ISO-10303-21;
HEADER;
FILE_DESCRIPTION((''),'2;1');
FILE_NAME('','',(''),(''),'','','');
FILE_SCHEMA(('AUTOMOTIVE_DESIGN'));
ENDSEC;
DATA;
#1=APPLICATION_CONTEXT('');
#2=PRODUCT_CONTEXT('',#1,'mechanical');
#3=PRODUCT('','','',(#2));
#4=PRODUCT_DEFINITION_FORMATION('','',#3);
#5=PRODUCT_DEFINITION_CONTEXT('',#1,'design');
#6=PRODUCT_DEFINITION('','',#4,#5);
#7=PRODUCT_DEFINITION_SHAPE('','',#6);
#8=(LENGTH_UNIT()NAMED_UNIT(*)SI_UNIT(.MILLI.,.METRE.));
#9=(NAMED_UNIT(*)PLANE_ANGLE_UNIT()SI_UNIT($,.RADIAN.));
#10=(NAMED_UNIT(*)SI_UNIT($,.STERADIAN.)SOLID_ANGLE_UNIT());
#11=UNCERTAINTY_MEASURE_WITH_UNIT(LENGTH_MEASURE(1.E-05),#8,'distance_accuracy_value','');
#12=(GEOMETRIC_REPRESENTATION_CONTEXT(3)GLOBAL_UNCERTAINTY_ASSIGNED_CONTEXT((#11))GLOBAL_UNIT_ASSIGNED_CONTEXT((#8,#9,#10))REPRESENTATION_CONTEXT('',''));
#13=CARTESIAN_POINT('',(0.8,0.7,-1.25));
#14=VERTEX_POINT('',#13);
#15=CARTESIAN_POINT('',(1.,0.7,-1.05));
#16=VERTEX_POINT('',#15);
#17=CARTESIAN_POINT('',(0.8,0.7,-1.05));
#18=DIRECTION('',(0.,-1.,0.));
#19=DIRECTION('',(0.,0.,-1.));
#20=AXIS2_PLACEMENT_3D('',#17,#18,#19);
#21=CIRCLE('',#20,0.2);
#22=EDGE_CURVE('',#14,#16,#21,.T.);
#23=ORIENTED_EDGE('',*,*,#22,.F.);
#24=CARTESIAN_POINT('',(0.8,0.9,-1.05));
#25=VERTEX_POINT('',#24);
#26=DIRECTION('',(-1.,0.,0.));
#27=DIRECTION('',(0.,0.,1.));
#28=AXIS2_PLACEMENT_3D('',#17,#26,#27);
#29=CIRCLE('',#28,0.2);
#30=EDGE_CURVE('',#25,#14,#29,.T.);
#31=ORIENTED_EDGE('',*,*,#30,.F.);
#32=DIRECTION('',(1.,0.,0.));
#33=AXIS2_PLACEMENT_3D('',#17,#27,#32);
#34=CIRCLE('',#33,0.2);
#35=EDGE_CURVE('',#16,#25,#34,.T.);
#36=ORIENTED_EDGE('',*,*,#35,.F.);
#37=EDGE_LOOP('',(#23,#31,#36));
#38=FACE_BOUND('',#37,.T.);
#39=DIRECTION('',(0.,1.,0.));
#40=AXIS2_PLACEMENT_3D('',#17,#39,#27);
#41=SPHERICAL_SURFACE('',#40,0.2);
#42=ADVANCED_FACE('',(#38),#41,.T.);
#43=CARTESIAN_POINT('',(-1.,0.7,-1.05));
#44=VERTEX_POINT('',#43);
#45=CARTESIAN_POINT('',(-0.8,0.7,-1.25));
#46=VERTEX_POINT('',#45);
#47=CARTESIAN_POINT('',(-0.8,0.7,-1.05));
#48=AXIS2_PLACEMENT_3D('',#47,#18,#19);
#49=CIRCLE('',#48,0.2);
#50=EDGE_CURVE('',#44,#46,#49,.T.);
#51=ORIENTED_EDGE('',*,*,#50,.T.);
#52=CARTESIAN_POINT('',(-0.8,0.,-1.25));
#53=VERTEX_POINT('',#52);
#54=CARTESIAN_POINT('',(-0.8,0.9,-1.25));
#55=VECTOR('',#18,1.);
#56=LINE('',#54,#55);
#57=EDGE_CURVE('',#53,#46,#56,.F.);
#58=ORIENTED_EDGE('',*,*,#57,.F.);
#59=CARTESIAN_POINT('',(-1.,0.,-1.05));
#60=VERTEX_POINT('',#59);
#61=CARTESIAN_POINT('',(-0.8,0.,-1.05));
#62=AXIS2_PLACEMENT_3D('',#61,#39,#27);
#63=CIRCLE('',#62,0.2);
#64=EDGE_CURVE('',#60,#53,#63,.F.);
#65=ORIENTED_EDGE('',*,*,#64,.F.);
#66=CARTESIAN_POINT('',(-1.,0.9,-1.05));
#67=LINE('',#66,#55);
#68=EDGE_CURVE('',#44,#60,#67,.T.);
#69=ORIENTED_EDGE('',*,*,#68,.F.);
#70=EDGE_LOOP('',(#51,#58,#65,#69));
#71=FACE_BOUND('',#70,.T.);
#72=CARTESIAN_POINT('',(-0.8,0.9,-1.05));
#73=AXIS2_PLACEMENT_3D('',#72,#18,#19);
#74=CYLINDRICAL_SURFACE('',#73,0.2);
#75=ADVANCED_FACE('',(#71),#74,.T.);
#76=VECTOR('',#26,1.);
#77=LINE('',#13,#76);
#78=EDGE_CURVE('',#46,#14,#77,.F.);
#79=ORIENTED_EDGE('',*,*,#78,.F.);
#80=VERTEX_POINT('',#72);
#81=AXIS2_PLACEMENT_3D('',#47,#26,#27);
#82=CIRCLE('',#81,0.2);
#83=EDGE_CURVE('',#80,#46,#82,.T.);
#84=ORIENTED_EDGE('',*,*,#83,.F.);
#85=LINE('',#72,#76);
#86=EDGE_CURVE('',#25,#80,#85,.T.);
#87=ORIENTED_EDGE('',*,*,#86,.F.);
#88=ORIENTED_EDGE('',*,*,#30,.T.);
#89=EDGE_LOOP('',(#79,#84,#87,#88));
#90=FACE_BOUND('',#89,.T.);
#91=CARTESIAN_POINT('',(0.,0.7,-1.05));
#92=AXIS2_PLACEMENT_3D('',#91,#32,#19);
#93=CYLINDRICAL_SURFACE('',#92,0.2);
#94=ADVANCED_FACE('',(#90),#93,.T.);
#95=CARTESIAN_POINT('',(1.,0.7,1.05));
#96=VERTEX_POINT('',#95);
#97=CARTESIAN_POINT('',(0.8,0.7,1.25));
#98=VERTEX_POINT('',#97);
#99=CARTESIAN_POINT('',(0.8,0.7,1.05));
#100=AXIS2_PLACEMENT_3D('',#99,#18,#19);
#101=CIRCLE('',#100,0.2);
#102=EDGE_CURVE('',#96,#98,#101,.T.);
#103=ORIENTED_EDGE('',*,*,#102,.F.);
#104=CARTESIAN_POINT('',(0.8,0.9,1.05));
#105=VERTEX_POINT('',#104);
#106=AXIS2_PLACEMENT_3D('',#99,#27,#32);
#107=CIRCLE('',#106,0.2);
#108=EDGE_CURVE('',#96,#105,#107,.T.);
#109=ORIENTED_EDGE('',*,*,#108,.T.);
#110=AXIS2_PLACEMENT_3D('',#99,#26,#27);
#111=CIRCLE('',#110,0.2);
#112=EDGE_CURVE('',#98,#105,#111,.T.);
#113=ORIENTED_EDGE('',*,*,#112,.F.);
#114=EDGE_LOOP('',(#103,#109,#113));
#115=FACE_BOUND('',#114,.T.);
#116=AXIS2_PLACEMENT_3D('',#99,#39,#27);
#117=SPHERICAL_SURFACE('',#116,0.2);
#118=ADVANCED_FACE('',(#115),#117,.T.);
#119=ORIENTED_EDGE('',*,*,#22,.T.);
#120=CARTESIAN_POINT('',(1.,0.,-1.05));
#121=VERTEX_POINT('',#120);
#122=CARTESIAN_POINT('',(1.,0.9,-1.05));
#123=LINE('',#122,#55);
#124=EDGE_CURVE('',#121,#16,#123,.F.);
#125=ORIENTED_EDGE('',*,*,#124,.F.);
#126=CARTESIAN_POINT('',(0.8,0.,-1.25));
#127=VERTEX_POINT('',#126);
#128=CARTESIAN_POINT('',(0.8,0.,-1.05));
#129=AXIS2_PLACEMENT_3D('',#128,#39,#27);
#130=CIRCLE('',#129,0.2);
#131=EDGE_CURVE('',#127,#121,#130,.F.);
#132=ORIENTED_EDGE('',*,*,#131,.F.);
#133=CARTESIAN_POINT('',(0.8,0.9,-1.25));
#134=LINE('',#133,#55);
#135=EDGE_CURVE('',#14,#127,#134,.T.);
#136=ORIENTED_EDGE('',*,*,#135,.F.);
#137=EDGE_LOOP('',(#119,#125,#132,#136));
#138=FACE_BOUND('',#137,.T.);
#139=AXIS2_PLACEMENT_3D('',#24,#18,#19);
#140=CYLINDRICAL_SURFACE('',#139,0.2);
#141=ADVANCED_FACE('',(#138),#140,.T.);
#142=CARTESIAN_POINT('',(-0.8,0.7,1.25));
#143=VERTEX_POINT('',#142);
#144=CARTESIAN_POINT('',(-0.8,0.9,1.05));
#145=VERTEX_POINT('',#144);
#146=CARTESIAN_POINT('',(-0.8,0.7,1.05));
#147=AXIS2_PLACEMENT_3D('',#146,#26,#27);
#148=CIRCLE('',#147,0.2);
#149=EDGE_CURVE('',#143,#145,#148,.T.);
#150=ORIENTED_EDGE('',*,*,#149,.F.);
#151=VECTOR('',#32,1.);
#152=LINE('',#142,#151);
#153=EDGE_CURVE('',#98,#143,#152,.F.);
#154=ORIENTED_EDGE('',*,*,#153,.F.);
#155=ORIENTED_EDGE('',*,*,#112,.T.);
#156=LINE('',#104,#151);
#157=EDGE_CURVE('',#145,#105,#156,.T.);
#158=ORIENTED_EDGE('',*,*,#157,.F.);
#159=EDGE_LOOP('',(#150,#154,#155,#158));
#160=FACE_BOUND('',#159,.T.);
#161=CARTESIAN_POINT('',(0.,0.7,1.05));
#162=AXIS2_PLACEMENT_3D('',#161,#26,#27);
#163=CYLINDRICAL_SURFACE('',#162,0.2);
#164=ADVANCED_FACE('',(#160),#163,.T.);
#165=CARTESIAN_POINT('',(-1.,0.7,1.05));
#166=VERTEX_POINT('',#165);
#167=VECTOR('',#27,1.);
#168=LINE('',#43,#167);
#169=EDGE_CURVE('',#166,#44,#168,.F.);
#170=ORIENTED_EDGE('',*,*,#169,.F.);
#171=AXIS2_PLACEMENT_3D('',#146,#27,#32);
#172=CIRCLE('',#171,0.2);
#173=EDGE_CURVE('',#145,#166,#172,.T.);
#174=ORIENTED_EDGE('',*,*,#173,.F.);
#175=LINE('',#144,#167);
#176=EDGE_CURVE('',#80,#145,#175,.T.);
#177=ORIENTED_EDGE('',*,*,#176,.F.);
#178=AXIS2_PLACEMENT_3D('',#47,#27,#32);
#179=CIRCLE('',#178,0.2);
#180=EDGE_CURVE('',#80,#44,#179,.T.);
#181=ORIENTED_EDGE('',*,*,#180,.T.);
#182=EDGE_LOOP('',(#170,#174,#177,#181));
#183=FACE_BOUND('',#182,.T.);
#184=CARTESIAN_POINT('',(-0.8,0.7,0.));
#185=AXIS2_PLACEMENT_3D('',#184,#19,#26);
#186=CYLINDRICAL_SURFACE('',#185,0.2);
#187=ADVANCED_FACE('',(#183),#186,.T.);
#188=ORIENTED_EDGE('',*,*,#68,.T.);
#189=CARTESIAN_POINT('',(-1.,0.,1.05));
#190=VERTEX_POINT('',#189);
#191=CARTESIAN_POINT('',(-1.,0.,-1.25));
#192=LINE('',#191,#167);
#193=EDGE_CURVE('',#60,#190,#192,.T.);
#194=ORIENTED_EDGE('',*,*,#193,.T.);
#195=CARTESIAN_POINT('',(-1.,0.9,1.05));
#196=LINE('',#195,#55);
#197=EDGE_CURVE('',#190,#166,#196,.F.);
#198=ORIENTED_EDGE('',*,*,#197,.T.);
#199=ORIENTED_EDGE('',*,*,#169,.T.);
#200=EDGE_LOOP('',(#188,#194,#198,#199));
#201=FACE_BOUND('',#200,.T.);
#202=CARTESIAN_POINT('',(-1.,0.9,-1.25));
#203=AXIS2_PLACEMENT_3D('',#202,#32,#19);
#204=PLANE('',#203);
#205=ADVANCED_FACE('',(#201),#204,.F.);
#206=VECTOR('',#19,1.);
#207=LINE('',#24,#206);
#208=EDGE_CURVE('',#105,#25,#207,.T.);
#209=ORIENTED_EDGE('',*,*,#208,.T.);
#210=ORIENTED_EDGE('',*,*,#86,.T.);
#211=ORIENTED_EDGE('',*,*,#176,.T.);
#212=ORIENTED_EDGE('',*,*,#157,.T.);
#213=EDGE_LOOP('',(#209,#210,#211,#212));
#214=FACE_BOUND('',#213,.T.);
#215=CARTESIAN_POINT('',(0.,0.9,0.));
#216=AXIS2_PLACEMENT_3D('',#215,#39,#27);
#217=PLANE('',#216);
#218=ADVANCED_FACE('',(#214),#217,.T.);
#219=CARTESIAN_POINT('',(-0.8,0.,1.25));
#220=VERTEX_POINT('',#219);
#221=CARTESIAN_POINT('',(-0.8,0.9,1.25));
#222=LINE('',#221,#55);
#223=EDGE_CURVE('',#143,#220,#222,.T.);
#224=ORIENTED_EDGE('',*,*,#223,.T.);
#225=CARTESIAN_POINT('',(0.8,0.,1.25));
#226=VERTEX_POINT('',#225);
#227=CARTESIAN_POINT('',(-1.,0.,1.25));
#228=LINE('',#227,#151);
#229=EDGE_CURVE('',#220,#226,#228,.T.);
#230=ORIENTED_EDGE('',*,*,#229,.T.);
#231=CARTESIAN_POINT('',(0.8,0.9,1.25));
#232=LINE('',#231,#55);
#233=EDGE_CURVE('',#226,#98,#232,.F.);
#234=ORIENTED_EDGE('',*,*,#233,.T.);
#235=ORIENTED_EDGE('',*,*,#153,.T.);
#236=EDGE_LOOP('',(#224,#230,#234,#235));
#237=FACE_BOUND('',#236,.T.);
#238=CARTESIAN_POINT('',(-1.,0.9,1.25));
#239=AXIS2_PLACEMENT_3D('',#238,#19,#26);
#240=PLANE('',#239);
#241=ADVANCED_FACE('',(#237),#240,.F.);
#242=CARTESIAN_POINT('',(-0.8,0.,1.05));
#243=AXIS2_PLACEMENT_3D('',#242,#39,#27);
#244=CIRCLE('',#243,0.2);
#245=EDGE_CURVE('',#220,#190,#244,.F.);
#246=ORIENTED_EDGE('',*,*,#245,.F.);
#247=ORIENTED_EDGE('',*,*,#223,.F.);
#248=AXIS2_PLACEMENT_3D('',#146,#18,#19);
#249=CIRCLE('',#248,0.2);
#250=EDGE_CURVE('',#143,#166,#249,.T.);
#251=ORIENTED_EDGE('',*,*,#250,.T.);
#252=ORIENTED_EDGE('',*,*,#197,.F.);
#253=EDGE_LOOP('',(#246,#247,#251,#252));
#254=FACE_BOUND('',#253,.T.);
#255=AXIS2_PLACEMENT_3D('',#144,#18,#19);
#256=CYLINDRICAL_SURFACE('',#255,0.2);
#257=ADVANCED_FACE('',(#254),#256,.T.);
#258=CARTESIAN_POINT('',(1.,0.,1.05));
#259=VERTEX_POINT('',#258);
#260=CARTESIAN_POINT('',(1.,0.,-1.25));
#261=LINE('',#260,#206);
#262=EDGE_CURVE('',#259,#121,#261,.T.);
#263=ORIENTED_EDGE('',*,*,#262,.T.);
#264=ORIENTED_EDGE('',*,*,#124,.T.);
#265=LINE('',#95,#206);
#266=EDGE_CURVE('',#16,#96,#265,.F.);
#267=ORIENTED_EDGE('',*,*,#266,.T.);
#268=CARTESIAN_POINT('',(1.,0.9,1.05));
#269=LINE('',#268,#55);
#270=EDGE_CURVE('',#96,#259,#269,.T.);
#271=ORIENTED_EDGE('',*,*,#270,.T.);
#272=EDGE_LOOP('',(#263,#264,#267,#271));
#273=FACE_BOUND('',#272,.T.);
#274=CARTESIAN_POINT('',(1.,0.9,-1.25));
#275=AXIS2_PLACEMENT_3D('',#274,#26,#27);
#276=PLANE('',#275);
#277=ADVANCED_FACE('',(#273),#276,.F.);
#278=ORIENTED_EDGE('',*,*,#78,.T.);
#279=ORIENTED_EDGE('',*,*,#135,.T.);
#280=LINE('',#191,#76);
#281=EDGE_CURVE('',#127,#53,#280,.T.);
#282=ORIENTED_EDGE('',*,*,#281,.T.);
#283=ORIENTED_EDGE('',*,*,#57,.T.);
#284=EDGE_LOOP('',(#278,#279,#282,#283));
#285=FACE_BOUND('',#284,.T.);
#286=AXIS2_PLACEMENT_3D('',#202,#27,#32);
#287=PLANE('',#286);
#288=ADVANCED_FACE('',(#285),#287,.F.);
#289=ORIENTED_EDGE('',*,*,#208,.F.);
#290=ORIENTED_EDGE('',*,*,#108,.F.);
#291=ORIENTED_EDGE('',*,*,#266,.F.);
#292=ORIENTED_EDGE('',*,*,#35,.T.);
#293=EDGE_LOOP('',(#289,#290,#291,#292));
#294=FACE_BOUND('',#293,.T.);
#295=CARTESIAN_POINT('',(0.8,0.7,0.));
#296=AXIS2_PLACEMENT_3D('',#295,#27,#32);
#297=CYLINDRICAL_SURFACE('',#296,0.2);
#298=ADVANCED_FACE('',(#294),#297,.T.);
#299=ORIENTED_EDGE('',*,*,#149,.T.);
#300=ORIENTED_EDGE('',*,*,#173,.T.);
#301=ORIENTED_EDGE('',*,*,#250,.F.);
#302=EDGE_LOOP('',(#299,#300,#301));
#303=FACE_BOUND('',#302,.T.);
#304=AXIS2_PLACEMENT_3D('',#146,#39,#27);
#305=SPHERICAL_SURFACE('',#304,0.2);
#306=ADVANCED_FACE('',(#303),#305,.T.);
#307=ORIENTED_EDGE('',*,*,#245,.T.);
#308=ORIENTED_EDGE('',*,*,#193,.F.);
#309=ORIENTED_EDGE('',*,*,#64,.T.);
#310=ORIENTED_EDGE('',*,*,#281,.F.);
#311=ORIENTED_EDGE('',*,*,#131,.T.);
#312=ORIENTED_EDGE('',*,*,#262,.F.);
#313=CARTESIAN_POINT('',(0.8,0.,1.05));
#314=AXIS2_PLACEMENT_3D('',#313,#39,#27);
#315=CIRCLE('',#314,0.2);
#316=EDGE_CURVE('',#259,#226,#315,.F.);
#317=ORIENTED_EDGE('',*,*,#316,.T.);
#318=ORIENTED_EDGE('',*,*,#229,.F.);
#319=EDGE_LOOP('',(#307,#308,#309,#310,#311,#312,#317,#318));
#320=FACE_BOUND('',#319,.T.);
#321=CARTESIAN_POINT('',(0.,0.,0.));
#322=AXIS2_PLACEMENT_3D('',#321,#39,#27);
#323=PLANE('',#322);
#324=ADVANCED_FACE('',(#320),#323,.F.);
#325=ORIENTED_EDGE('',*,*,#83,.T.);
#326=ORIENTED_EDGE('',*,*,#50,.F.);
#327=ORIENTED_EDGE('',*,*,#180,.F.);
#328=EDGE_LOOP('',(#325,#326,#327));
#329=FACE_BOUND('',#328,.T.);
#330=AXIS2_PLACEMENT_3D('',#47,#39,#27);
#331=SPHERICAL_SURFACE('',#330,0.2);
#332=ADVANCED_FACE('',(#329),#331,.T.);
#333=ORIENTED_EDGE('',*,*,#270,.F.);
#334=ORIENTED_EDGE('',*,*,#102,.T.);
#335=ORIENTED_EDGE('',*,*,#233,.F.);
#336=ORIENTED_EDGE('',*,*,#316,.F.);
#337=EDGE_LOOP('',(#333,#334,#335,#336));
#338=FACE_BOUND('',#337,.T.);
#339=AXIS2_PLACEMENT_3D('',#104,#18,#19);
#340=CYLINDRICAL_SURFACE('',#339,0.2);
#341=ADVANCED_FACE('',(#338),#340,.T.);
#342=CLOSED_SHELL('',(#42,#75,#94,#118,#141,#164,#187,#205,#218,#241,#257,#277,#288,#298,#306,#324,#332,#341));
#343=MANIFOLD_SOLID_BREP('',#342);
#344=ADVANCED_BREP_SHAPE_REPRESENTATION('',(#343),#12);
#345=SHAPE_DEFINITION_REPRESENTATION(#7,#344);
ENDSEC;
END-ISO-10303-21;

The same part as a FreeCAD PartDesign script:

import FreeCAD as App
import Part
import Sketcher
from FreeCAD import Vector


def edges_at(feature, points):
    """Names of the edges that pass closest to the given points."""
    edges = feature.Shape.Edges
    near = lambda p: min(range(len(edges)), key=lambda i: edges[i].distToShape(Part.Vertex(*p))[0])
    return sorted({f"Edge{near(p) + 1}" for p in points})


def add_polygon(sketch, points):
    """Adds a closed chain of lines whose ends are joined by coincident constraints."""
    first, n = sketch.GeometryCount, len(points)
    for a, b in zip(points, points[1:] + points[:1]):
        sketch.addGeometry(Part.LineSegment(App.Vector(*a, 0), App.Vector(*b, 0)), False)
    for i in range(n):
        sketch.addConstraint(Sketcher.Constraint("Coincident", first + i, 2, first + (i + 1) % n, 1))

doc = App.newDocument("Part")
params = doc.addObject("Spreadsheet::Sheet", "Params")
for row, (alias, value) in enumerate([
    ("sketch1_width", "2 mm"),
    ("sketch1_height", "2.5 mm"),
    ("pad1_length", "0.9 mm"),
    ("fillet_radius", "0.2 mm"),
    ("fillet2_radius", "0.2 mm"),
], start=1):
    params.set(f"A{row}", alias)
    params.set(f"B{row}", "=" + value)
    params.setAlias(f"B{row}", alias)

body = doc.addObject("PartDesign::Body", "Body")

sketch1 = doc.addObject("Sketcher::SketchObject", "Sketch")
body.addObject(sketch1)
sketch1.AttachmentSupport = (doc.XZ_Plane, [""])
sketch1.MapMode = "FlatFace"
add_polygon(sketch1, [(-1, -1.25), (-1, 1.25), (1, 1.25), (1, -1.25)])
sketch1.addConstraint(Sketcher.Constraint("Vertical", 0))
sketch1.addConstraint(Sketcher.Constraint("Horizontal", 1))
sketch1.addConstraint(Sketcher.Constraint("Vertical", 2))
sketch1.addConstraint(Sketcher.Constraint("Horizontal", 3))
sketch1.addConstraint(Sketcher.Constraint("Symmetric", 0, 2, 2, 2, -1, 1))
sketch1.addConstraint(Sketcher.Constraint("DistanceX", 1, 1, 1, 2, 2.0))
sketch1.addConstraint(Sketcher.Constraint("DistanceY", 0, 1, 0, 2, 2.5))
sketch1.setExpression("Constraints[9]", "Params.sketch1_width")
sketch1.setExpression("Constraints[10]", "Params.sketch1_height")
pad1 = doc.addObject("PartDesign::Pad", "Pad")
body.addObject(pad1)
pad1.Profile = sketch1
pad1.setExpression("Length", "Params.pad1_length")
pad1.Reversed = True
doc.recompute()

fillet = doc.addObject("PartDesign::Fillet", "Fillet")
body.addObject(fillet)
fillet.Base = (pad1, edges_at(pad1, [
    (1, 0.45, 1.25),
    (-1, 0.45, 1.25),
    (-1, 0.45, -1.25),
    (1, 0.45, -1.25),
]))
fillet.setExpression("Radius", "Params.fillet_radius")
doc.recompute()

fillet2 = doc.addObject("PartDesign::Fillet", "Fillet001")
body.addObject(fillet2)
fillet2.Base = (fillet, edges_at(fillet, [
    (1, 0.9, 0),
    (0, 0.9, 1.25),
    (0, 0.9, -1.25),
    (-1, 0.9, 0),
    (-0.941, 0.9, -1.191),
    (-0.941, 0.9, 1.191),
    (0.941, 0.9, -1.191),
    (0.941, 0.9, 1.191),
]))
fillet2.setExpression("Radius", "Params.fillet2_radius")

doc.recompute()
